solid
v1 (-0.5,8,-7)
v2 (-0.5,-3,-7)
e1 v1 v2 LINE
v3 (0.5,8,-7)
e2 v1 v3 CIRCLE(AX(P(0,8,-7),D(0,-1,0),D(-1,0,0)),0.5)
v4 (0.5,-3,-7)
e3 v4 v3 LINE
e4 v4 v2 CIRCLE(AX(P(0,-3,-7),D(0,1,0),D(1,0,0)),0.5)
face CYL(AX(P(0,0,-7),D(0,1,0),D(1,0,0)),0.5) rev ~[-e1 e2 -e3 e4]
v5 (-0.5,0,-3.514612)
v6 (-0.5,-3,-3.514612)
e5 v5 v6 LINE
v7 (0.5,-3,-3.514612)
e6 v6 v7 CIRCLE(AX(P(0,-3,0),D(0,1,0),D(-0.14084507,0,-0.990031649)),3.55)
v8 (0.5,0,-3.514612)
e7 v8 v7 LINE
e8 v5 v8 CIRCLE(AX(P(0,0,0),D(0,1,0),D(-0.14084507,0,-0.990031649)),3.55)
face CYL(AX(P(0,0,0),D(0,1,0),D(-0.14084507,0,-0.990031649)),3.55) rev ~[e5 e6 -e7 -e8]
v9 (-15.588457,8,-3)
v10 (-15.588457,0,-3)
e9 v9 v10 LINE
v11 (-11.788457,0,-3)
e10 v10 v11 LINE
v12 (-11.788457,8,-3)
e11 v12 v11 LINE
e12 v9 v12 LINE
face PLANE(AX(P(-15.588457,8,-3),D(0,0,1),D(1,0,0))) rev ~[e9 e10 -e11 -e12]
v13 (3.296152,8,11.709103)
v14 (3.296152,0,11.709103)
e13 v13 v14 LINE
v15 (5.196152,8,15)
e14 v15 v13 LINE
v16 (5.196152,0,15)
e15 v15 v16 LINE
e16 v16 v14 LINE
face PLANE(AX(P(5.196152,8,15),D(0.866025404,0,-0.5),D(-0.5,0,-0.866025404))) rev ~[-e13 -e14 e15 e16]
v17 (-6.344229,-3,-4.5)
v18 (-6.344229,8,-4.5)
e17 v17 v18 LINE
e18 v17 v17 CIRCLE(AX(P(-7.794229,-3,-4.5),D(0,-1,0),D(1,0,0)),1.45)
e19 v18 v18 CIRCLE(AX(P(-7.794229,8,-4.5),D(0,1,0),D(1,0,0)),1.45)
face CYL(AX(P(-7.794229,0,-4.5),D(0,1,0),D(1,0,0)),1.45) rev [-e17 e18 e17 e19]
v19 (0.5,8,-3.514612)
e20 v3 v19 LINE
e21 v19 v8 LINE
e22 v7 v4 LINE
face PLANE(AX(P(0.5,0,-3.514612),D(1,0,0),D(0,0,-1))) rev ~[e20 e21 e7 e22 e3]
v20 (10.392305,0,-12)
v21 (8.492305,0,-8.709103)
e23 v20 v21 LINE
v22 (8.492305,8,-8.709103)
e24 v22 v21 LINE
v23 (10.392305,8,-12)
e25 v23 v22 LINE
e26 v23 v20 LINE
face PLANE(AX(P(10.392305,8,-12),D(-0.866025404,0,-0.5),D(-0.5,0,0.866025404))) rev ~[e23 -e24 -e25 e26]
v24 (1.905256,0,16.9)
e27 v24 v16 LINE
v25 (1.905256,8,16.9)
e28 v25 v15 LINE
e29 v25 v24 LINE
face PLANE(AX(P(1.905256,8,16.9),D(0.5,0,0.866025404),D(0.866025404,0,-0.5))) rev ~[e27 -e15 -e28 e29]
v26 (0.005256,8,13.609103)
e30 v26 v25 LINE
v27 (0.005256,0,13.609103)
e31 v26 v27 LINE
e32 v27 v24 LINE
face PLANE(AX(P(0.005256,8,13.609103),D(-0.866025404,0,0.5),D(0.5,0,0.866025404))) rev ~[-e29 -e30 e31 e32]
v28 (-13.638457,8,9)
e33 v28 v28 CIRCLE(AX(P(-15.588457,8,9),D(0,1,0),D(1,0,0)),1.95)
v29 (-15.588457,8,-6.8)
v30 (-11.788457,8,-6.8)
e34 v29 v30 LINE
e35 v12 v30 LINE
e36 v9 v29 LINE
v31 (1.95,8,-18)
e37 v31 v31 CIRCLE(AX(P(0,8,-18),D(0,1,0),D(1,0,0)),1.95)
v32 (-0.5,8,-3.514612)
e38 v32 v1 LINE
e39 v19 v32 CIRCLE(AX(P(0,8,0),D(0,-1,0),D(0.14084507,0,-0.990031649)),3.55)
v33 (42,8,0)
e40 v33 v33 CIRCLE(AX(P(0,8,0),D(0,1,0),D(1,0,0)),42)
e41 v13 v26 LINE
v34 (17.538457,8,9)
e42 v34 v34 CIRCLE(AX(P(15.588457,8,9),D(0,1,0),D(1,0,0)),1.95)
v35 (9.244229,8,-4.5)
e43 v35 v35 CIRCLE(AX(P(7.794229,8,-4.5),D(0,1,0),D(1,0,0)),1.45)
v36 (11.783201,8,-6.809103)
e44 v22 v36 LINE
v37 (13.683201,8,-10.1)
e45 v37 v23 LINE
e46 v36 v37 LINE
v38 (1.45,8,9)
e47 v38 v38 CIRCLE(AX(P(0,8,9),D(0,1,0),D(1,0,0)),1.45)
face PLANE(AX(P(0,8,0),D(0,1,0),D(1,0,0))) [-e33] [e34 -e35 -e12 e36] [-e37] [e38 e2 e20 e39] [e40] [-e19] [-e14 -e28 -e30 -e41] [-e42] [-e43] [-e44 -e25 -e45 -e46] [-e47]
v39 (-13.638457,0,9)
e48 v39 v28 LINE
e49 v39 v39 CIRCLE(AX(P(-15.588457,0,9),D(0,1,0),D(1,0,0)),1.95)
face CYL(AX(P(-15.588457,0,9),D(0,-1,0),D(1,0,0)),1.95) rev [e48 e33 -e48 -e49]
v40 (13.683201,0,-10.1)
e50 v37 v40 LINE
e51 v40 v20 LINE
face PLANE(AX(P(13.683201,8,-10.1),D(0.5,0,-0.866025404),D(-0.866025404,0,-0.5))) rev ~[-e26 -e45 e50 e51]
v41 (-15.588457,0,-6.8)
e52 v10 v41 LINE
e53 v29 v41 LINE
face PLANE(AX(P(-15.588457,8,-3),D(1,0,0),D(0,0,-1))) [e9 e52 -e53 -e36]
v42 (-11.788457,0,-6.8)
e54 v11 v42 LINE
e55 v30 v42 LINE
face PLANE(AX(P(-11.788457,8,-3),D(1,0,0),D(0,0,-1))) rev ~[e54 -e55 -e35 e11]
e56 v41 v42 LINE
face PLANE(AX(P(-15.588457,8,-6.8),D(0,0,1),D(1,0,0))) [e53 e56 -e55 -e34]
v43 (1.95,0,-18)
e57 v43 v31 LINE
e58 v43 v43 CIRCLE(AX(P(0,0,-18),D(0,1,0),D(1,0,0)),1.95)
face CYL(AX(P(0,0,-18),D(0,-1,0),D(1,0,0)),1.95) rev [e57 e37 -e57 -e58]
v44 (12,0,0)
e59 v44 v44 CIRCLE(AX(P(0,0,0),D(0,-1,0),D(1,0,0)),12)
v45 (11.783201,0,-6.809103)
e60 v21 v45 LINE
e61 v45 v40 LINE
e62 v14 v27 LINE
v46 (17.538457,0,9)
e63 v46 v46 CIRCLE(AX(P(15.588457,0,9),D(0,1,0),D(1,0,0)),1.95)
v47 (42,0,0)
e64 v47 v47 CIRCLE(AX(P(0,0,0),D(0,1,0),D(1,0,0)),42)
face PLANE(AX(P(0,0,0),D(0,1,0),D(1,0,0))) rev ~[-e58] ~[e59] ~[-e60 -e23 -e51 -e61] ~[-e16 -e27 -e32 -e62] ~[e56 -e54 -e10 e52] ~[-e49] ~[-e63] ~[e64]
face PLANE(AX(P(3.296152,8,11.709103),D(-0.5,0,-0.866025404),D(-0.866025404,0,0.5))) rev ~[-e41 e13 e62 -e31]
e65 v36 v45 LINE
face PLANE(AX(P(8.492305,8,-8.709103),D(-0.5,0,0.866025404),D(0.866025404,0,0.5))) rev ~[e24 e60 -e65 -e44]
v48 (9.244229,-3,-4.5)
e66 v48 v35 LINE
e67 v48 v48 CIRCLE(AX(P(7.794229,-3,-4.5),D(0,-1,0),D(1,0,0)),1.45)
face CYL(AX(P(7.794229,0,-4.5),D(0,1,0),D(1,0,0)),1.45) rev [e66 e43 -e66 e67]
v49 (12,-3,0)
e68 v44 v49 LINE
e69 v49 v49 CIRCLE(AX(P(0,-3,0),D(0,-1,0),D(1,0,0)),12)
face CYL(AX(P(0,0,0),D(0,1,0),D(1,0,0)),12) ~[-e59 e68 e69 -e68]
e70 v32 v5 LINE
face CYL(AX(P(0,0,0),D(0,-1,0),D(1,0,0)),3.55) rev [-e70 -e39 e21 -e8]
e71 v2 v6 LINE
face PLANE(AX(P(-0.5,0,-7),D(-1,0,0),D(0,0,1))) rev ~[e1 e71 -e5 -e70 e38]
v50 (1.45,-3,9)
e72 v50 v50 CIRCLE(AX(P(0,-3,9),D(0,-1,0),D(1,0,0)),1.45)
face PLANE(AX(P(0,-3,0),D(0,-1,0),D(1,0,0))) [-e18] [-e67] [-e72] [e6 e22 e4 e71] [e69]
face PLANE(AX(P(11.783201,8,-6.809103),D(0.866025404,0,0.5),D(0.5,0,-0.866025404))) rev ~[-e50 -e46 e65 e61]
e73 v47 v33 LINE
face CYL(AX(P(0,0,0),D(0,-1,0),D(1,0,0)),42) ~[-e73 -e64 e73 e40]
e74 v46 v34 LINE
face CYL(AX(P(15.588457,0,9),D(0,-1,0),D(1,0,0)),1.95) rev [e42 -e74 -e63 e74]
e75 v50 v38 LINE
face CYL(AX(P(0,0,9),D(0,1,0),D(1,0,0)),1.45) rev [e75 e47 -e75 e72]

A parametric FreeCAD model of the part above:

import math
import FreeCAD as App
import Part
import Sketcher

V = App.Vector
Q = App.Units.Quantity

doc = App.newDocument("Part")
params = doc.addObject("Spreadsheet::Sheet", "Params")
for row, (alias, value) in enumerate([
    ("sketch1_diameter", "84 mm"),
    ("sketch1_diameter2", "3.9 mm"),
    ("sketch1_diameter3", "2.9 mm"),
    ("sketch1_diameter4", "7.1 mm"),
    ("pad1_length", "8 mm"),
    ("sketch2_radius", "0.5 mm"),
    ("sketch2_height", "7 mm"),
    ("pocket1_length", "10 mm"),
    ("sketch3_width", "3.8 mm"),
    ("sketch3_length", "3.8 mm"),
    ("pocket2_length", "35 mm"),
    ("sketch4_diameter", "24 mm"),
    ("sketch4_diameter2", "2.9 mm"),
    ("sketch4_radius", "0.5 mm"),
    ("sketch4_radius2", "3.55 mm"),
    ("pad2_length", "3 mm"),
], start=1):
    params.set(f"A{row}", alias)
    params.set(f"B{row}", "=" + value)
    params.setAlias(f"B{row}", alias)

body = doc.addObject("PartDesign::Body", "Body")

# Sketch on XZ plane
sketch1 = body.newObject("Sketcher::SketchObject", "Sketch")
sketch1.AttachmentSupport = (doc.getObject("XZ_Plane"), [""])
sketch1.MapMode = "FlatFace"
sketch1.addGeometry([
    Part.Circle(V(0, 0, 0), V(0, 0, 1), 42),  # 0
    Part.Circle(V(-15.588457, 9, 0), V(0, 0, 1), 1.95),  # 1
    Part.Circle(V(0, 9, 0), V(0, 0, 1), 1.45),  # 2
    Part.Circle(V(15.588457, 9, 0), V(0, 0, 1), 1.95),  # 3
    Part.Circle(V(0, 0, 0), V(0, 0, 1), 3.55),  # 4
    Part.Circle(V(-7.794229, -4.5, 0), V(0, 0, 1), 1.45),  # 5
    Part.Circle(V(7.794229, -4.5, 0), V(0, 0, 1), 1.45),  # 6
    Part.Circle(V(0, -18, 0), V(0, 0, 1), 1.95),  # 7
], False)
sketch1.addConstraint([
    Sketcher.Constraint("Coincident", 0, 3, -1, 1),
    Sketcher.Constraint("Coincident", 4, 3, -1, 1),
    Sketcher.Constraint("Equal", 1, 3),
    Sketcher.Constraint("Equal", 2, 5),
    Sketcher.Constraint("Equal", 5, 6),
    Sketcher.Constraint("Equal", 3, 7),
    Sketcher.Constraint("Symmetric", 1, 3, 3, 3, -2),
    Sketcher.Constraint("Symmetric", 5, 3, 6, 3, -2),
    Sketcher.Constraint("PointOnObject", 2, 3, -2),
    Sketcher.Constraint("PointOnObject", 7, 3, -2),
    Sketcher.Constraint("Horizontal", 1, 3, 2, 3),
    Sketcher.Constraint("Diameter", 0, Q("84 mm")),
    Sketcher.Constraint("Diameter", 1, Q("3.9 mm")),
    Sketcher.Constraint("Diameter", 2, Q("2.9 mm")),
    Sketcher.Constraint("Diameter", 4, Q("7.1 mm")),
    Sketcher.Constraint("DistanceY", -1, 1, 1, 3, Q("9 mm")),
    Sketcher.Constraint("DistanceY", 7, 3, -1, 1, Q("18 mm")),
    Sketcher.Constraint("DistanceY", 5, 3, -1, 1, Q("4.5 mm")),
    Sketcher.Constraint("DistanceX", 5, 3, -1, 1, Q("7.794229 mm")),
    Sketcher.Constraint("DistanceX", 1, 3, 5, 3, Q("7.794229 mm")),
])
sketch1.setExpression("Constraints[11]", "Params.sketch1_diameter")
sketch1.setExpression("Constraints[12]", "Params.sketch1_diameter2")
sketch1.setExpression("Constraints[13]", "Params.sketch1_diameter3")
sketch1.setExpression("Constraints[14]", "Params.sketch1_diameter4")
pad1 = body.newObject("PartDesign::Pad", "Pad")
pad1.Profile = sketch1
pad1.setExpression("Length", "Params.pad1_length")
pad1.Reversed = True

# Sketch on XZ plane
sketch2 = body.newObject("Sketcher::SketchObject", "Sketch001")
sketch2.AttachmentSupport = (doc.getObject("XZ_Plane"), [""])
sketch2.MapMode = "FlatFace"
sketch2.AttachmentOffset = App.Placement(V(0, 0, -8), App.Rotation())
sketch2.addGeometry([
    Part.LineSegment(V(0.5, 0, 0), V(0.5, -7, 0)),
    Part.ArcOfCircle(Part.Circle(V(0, -7, 0), V(0, 0, 1), 0.5), math.radians(180), math.radians(360)),
    Part.LineSegment(V(-0.5, -7, 0), V(-0.5, 0, 0)),
    Part.ArcOfCircle(Part.Circle(V(0, 0, 0), V(0, 0, 1), 0.5), math.radians(0), math.radians(180)),
], False)
sketch2.addConstraint([
    Sketcher.Constraint("Tangent", 0, 2, 1, 2),
    Sketcher.Constraint("Tangent", 1, 1, 2, 1),
    Sketcher.Constraint("Tangent", 2, 2, 3, 2),
    Sketcher.Constraint("Tangent", 3, 1, 0, 1),
    Sketcher.Constraint("Vertical", 0),
    Sketcher.Constraint("Vertical", 2),
    Sketcher.Constraint("Coincident", 3, 3, -1, 1),
    Sketcher.Constraint("Radius", 1, Q("0.5 mm")),
    Sketcher.Constraint("DistanceY", 0, 2, 0, 1, Q("7 mm")),
])
sketch2.setExpression("Constraints[7]", "Params.sketch2_radius")
sketch2.setExpression("Constraints[8]", "Params.sketch2_height")
pocket1 = body.newObject("PartDesign::Pocket", "Pocket")
pocket1.Profile = sketch2
pocket1.setExpression("Length", "Params.pocket1_length")
pocket1.Reversed = True

# Sketch on XZ plane
sketch3 = body.newObject("Sketcher::SketchObject", "Sketch002")
sketch3.AttachmentSupport = (doc.getObject("XZ_Plane"), [""])
sketch3.MapMode = "FlatFace"
sketch3.AttachmentOffset = App.Placement(V(0, 0, -8), App.Rotation())
sketch3.addGeometry([
    Part.LineSegment(V(1.905256, 16.9, 0), V(5.196152, 15, 0)),  # 0
    Part.LineSegment(V(5.196152, 15, 0), V(3.296152, 11.709103, 0)),  # 1
    Part.LineSegment(V(3.296152, 11.709103, 0), V(0.005256, 13.609103, 0)),  # 2
    Part.LineSegment(V(0.005256, 13.609103, 0), V(1.905256, 16.9, 0)),  # 3
    Part.LineSegment(V(-15.588457, -6.8, 0), V(-15.588457, -3, 0)),  # 4
    Part.LineSegment(V(-15.588457, -3, 0), V(-11.788457, -3, 0)),  # 5
    Part.LineSegment(V(-11.788457, -3, 0), V(-11.788457, -6.8, 0)),  # 6
    Part.LineSegment(V(-11.788457, -6.8, 0), V(-15.588457, -6.8, 0)),  # 7
    Part.LineSegment(V(13.683201, -10.1, 0), V(10.392305, -12, 0)),  # 8
    Part.LineSegment(V(10.392305, -12, 0), V(8.492305, -8.709103, 0)),  # 9
    Part.LineSegment(V(8.492305, -8.709103, 0), V(11.783201, -6.809103, 0)),  # 10
    Part.LineSegment(V(11.783201, -6.809103, 0), V(13.683201, -10.1, 0)),  # 11
], False)
sketch3.addConstraint([
    Sketcher.Constraint("Coincident", 0, 2, 1, 1),
    Sketcher.Constraint("Coincident", 1, 2, 2, 1),
    Sketcher.Constraint("Coincident", 2, 2, 3, 1),
    Sketcher.Constraint("Coincident", 3, 2, 0, 1),
    Sketcher.Constraint("Coincident", 4, 2, 5, 1),
    Sketcher.Constraint("Coincident", 5, 2, 6, 1),
    Sketcher.Constraint("Coincident", 6, 2, 7, 1),
    Sketcher.Constraint("Coincident", 7, 2, 4, 1),
    Sketcher.Constraint("Coincident", 8, 2, 9, 1),
    Sketcher.Constraint("Coincident", 9, 2, 10, 1),
    Sketcher.Constraint("Coincident", 10, 2, 11, 1),
    Sketcher.Constraint("Coincident", 11, 2, 8, 1),
    Sketcher.Constraint("Vertical", 4),
    Sketcher.Constraint("Horizontal", 5),
    Sketcher.Constraint("Vertical", 6),
    Sketcher.Constraint("Horizontal", 7),
    Sketcher.Constraint("Perpendicular", 0, 1),
    Sketcher.Constraint("Perpendicular", 1, 2),
    Sketcher.Constraint("Perpendicular", 2, 3),
    Sketcher.Constraint("Perpendicular", 8, 9),
    Sketcher.Constraint("Perpendicular", 9, 10),
    Sketcher.Constraint("Perpendicular", 10, 11),
    Sketcher.Constraint("Equal", 7, 4),
    Sketcher.Constraint("Equal", 0, 1),
    Sketcher.Constraint("Equal", 3, 8),
    Sketcher.Constraint("Equal", 8, 9),
    Sketcher.Constraint("Angle", 0, Q("-30 deg")),
    Sketcher.Constraint("Angle", 8, Q("-150 deg")),
    Sketcher.Constraint("DistanceX", 5, 1, 5, 2, Q("3.8 mm")),
    Sketcher.Constraint("DistanceY", -1, 1, 0, 2, Q("15 mm")),
    Sketcher.Constraint("DistanceY", 4, 2, -1, 1, Q("3 mm")),
    Sketcher.Constraint("DistanceY", 8, 2, -1, 1, Q("12 mm")),
    Sketcher.Constraint("Distance", 0, Q("3.8 mm")),
    Sketcher.Constraint("DistanceX", -1, 1, 10, 2, Q("11.783201 mm")),
    Sketcher.Constraint("DistanceX", 4, 2, 1, 2, Q("18.88461 mm")),
    Sketcher.Constraint("DistanceX", 2, 2, 9, 2, Q("8.487049 mm")),
])
sketch3.setExpression("Constraints[28]", "Params.sketch3_width")
sketch3.setExpression("Constraints[32]", "Params.sketch3_length")
pocket2 = body.newObject("PartDesign::Pocket", "Pocket001")
pocket2.Profile = sketch3
pocket2.setExpression("Length", "Params.pocket2_length")
pocket2.Reversed = True

# Sketch on XZ plane
sketch4 = body.newObject("Sketcher::SketchObject", "Sketch003")
sketch4.AttachmentSupport = (doc.getObject("XZ_Plane"), [""])
sketch4.MapMode = "FlatFace"
sketch4.addGeometry([
    Part.Circle(V(0, 0, 0), V(0, 0, 1), 12),  # 0
    Part.Circle(V(-7.794229, -4.5, 0), V(0, 0, 1), 1.45),  # 1
    Part.Circle(V(7.794229, -4.5, 0), V(0, 0, 1), 1.45),  # 2
    Part.ArcOfCircle(Part.Circle(V(0, -7, 0), V(0, 0, 1), 0.5), math.radians(180), math.radians(360)),  # 3
    Part.LineSegment(V(-0.5, -7, 0), V(-0.5, -3.514612, 0)),  # 4
    Part.ArcOfCircle(Part.Circle(V(0, 0, 0), V(0, 0, 1), 3.55), math.radians(-81.90325), math.radians(261.90325)),  # 5
    Part.LineSegment(V(0.5, -3.514612, 0), V(0.5, -7, 0)),  # 6
    Part.Circle(V(0, 9, 0), V(0, 0, 1), 1.45),  # 7
], False)
sketch4.addConstraint([
    Sketcher.Constraint("Tangent", 3, 1, 4, 1),
    Sketcher.Constraint("Coincident", 4, 2, 5, 2),
    Sketcher.Constraint("Coincident", 5, 1, 6, 1),
    Sketcher.Constraint("Tangent", 6, 2, 3, 2),
    Sketcher.Constraint("Vertical", 4),
    Sketcher.Constraint("Vertical", 6),
    Sketcher.Constraint("Coincident", 0, 3, -1, 1),
    Sketcher.Constraint("Coincident", 5, 3, -1, 1),
    Sketcher.Constraint("Equal", 1, 2),
    Sketcher.Constraint("Equal", 2, 7),
    Sketcher.Constraint("Symmetric", 1, 3, 2, 3, -2),
    Sketcher.Constraint("PointOnObject", 3, 3, -2),
    Sketcher.Constraint("PointOnObject", 7, 3, -2),
    Sketcher.Constraint("Diameter", 0, Q("24 mm")),
    Sketcher.Constraint("Diameter", 1, Q("2.9 mm")),
    Sketcher.Constraint("Radius", 3, Q("0.5 mm")),
    Sketcher.Constraint("Radius", 5, Q("3.55 mm")),
    Sketcher.Constraint("DistanceY", 3, 3, -1, 1, Q("7 mm")),
    Sketcher.Constraint("DistanceY", -1, 1, 7, 3, Q("9 mm")),
    Sketcher.Constraint("DistanceY", 1, 3, -1, 1, Q("4.5 mm")),
    Sketcher.Constraint("DistanceX", 1, 3, -1, 1, Q("7.794229 mm")),
])
sketch4.setExpression("Constraints[13]", "Params.sketch4_diameter")
sketch4.setExpression("Constraints[14]", "Params.sketch4_diameter2")
sketch4.setExpression("Constraints[15]", "Params.sketch4_radius")
sketch4.setExpression("Constraints[16]", "Params.sketch4_radius2")
pad2 = body.newObject("PartDesign::Pad", "Pad001")
pad2.Profile = sketch4
pad2.setExpression("Length", "Params.pad2_length")

doc.recompute()
